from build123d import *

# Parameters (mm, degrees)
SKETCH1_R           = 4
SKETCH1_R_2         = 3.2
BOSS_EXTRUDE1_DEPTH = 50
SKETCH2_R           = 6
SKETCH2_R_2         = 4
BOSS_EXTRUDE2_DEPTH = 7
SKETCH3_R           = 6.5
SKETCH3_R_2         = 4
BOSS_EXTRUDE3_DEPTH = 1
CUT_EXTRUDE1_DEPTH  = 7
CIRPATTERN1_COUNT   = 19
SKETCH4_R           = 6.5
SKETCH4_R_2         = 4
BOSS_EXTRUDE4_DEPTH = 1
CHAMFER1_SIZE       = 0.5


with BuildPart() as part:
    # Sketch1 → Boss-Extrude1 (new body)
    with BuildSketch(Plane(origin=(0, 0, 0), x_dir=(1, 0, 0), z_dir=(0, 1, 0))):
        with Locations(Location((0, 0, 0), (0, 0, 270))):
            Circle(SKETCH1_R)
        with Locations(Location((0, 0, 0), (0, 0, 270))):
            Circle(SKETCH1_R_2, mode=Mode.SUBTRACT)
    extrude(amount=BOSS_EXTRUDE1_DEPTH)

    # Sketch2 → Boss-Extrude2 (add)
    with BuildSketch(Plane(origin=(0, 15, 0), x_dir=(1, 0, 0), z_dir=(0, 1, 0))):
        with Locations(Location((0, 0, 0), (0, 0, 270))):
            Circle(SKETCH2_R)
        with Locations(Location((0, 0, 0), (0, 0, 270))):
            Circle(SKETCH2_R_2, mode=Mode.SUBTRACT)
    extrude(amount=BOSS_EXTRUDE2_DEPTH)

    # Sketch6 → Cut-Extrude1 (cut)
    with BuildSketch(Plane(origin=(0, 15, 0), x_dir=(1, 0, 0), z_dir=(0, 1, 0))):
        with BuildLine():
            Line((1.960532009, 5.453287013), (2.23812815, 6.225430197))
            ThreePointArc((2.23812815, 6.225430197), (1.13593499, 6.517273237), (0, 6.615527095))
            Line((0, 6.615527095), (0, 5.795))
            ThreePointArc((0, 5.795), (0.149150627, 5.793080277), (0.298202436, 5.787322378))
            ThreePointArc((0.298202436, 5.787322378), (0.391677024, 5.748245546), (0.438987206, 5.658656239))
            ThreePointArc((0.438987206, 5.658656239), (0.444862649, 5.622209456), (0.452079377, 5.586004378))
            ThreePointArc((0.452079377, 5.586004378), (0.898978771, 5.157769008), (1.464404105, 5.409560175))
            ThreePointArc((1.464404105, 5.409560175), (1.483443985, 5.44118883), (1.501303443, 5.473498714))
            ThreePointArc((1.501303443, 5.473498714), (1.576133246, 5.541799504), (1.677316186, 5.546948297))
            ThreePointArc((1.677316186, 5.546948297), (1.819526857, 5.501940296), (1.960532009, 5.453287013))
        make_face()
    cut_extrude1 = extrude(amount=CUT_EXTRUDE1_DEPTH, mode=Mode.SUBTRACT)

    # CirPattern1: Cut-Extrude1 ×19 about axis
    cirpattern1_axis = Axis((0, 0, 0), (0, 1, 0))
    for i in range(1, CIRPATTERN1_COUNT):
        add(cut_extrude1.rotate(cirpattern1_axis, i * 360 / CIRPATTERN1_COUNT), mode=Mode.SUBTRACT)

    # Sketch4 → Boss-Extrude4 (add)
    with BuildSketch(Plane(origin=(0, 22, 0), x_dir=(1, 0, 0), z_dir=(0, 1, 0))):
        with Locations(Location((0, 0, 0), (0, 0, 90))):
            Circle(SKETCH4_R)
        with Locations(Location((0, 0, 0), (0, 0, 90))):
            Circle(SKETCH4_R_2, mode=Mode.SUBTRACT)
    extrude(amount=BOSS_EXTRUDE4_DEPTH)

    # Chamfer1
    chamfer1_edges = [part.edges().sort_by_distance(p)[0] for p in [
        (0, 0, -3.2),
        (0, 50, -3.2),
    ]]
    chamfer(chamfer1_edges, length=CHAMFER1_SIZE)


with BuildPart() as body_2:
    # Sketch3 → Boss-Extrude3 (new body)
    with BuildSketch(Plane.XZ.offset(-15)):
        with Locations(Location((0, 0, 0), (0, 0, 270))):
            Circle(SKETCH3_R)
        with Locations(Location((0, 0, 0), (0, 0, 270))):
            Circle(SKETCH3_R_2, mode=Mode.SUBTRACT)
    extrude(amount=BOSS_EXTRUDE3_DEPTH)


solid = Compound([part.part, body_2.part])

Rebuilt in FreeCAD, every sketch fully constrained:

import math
import FreeCAD as App
import Part
import Sketcher


def edges_at(feature, points):
    """Names of the edges that pass closest to the given points."""
    edges = feature.Shape.Edges
    near = lambda p: min(range(len(edges)), key=lambda i: edges[i].distToShape(Part.Vertex(*p))[0])
    return sorted({f"Edge{near(p) + 1}" for p in points})

doc = App.newDocument("Part")
body = doc.addObject("PartDesign::Body", "Body")

# Sketch on XZ plane
sketch1 = body.newObject("Sketcher::SketchObject", "Sketch")
sketch1.AttachmentSupport = (doc.getObject("XZ_Plane"), [""])
sketch1.MapMode = "FlatFace"
sketch1.addGeometry([
    Part.Circle(App.Vector(0, 0, 0), App.Vector(0, 0, 1), 4),
    Part.Circle(App.Vector(0, 0, 0), App.Vector(0, 0, 1), 3.2),
], False)
sketch1.addConstraint([
    Sketcher.Constraint("Coincident", 0, 3, -1, 1),
    Sketcher.Constraint("Coincident", 1, 3, -1, 1),
    Sketcher.Constraint("Diameter", 0, 8.0),
    Sketcher.Constraint("Diameter", 1, 6.4),
])
pad1 = body.newObject("PartDesign::Pad", "Pad")
pad1.Profile = sketch1
pad1.Length = 50
pad1.Reversed = True

# Sketch on XZ plane
sketch2 = body.newObject("Sketcher::SketchObject", "Sketch001")
sketch2.AttachmentSupport = (doc.getObject("XZ_Plane"), [""])
sketch2.MapMode = "FlatFace"
sketch2.AttachmentOffset = App.Placement(App.Vector(0, 0, -15), App.Rotation())
sketch2.addGeometry([
    Part.Circle(App.Vector(0, 0, 0), App.Vector(0, 0, 1), 6),
    Part.Circle(App.Vector(0, 0, 0), App.Vector(0, 0, 1), 4),
], False)
sketch2.addConstraint([
    Sketcher.Constraint("Coincident", 0, 3, -1, 1),
    Sketcher.Constraint("Coincident", 1, 3, -1, 1),
    Sketcher.Constraint("Diameter", 0, 12.0),
    Sketcher.Constraint("Diameter", 1, 8.0),
])
pad2 = body.newObject("PartDesign::Pad", "Pad001")
pad2.Profile = sketch2
pad2.Length = 7
pad2.Reversed = True

# Sketch on XZ plane
sketch3 = body.newObject("Sketcher::SketchObject", "Sketch002")
sketch3.AttachmentSupport = (doc.getObject("XZ_Plane"), [""])
sketch3.MapMode = "FlatFace"
sketch3.AttachmentOffset = App.Placement(App.Vector(0, 0, -15), App.Rotation())
sketch3.addGeometry([
    Part.LineSegment(App.Vector(1.96, -5.45, 0), App.Vector(2.24, -6.23, 0)),  # 0
    Part.ArcOfCircle(Part.Circle(App.Vector(0, 0, 0), App.Vector(0, 0, 1), 6.62), math.radians(-90), math.radians(-70.23)),  # 1
    Part.LineSegment(App.Vector(0, -6.62, 0), App.Vector(0, -5.79, 0)),  # 2
    Part.ArcOfCircle(Part.Circle(App.Vector(0, 0, 0), App.Vector(0, 0, 1), 5.79), math.radians(-90), math.radians(-87.05)),  # 3
    Part.ArcOfCircle(Part.Circle(App.Vector(0.29, -5.64, 0), App.Vector(0, 0, 1), 0.15), math.radians(-87), math.radians(-8)),  # 4
    Part.ArcOfCircle(Part.Circle(App.Vector(1.43, -5.8, 0), App.Vector(0, 0, 1), 1), math.radians(167.67), math.radians(171.9)),  # 5
    Part.ArcOfCircle(Part.Circle(App.Vector(0.99, -5.7, 0), App.Vector(0, 0, 1), 0.56), math.radians(32), math.radians(168)),  # 6
    Part.ArcOfCircle(Part.Circle(App.Vector(0.62, -5.94, 0), App.Vector(0, 0, 1), 1), math.radians(27.87), math.radians(32.1)),  # 7
    Part.ArcOfCircle(Part.Circle(App.Vector(1.63, -5.4, 0), App.Vector(0, 0, 1), 0.15), math.radians(-152), math.radians(-73)),  # 8
    Part.ArcOfCircle(Part.Circle(App.Vector(0, 0, 0), App.Vector(0, 0, 1), 5.79), math.radians(-73.18), math.radians(-70.23)),  # 9
], False)
sketch3.addConstraint([
    Sketcher.Constraint("Coincident", 0, 2, 1, 2),
    Sketcher.Constraint("Coincident", 1, 1, 2, 1),
    Sketcher.Constraint("Coincident", 2, 2, 3, 1),
    Sketcher.Constraint("Tangent", 3, 2, 4, 1),
    Sketcher.Constraint("Tangent", 4, 2, 5, 2),
    Sketcher.Constraint("Tangent", 5, 1, 6, 2),
    Sketcher.Constraint("Tangent", 6, 1, 7, 2),
    Sketcher.Constraint("Tangent", 7, 1, 8, 1),
    Sketcher.Constraint("Tangent", 8, 2, 9, 1),
    Sketcher.Constraint("Coincident", 9, 2, 0, 1),
    Sketcher.Constraint("Vertical", 2),
    Sketcher.Constraint("Coincident", 1, 3, -1, 1),
    Sketcher.Constraint("Coincident", 3, 3, -1, 1),
    Sketcher.Constraint("Coincident", 9, 3, -1, 1),
    Sketcher.Constraint("Equal", 5, 7),
    Sketcher.Constraint("Equal", 4, 8),
    Sketcher.Constraint("Equal", 3, 9),
    Sketcher.Constraint("PointOnObject", 1, 1, -2),
    Sketcher.Constraint("Radius", 5, 1.0),
    Sketcher.Constraint("Radius", 4, 0.15),
    Sketcher.Constraint("Radius", 3, 5.794999),
    Sketcher.Constraint("Radius", 6, 0.555),
    Sketcher.Constraint("Radius", 1, 6.615527),
    Sketcher.Constraint("DistanceY", 1, 1, 6, 3, 0.911001),
    Sketcher.Constraint("DistanceX", -1, 1, 8, 3, 1.6339),
    Sketcher.Constraint("DistanceY", 7, 1, -1, 1, 5.473499),
    Sketcher.Constraint("DistanceX", 7, 3, 0, 2, 1.6208),
    Sketcher.Constraint("DistanceX", -1, 1, 5, 3, 1.429011),
    Sketcher.Constraint("DistanceY", 8, 2, 9, 2, 0.093661),
])
pocket1 = body.newObject("PartDesign::Pocket", "Pocket")
pocket1.Profile = sketch3
pocket1.Length = 7
doc.recompute()

polarpattern = body.newObject("PartDesign::PolarPattern", "PolarPattern")
polarpattern.Originals = [pocket1]
polarpattern.Axis = (doc.getObject("Y_Axis"), [""])
polarpattern.Angle = 360
polarpattern.Occurrences = 19
body.Tip = polarpattern

# Sketch on XZ plane
sketch4 = body.newObject("Sketcher::SketchObject", "Sketch003")
sketch4.AttachmentSupport = (doc.getObject("XZ_Plane"), [""])
sketch4.MapMode = "FlatFace"
sketch4.AttachmentOffset = App.Placement(App.Vector(0, 0, -22), App.Rotation())
sketch4.addGeometry([
    Part.Circle(App.Vector(0, 0, 0), App.Vector(0, 0, 1), 6.5),
    Part.Circle(App.Vector(0, 0, 0), App.Vector(0, 0, 1), 4),
], False)
sketch4.addConstraint([
    Sketcher.Constraint("Coincident", 0, 3, -1, 1),
    Sketcher.Constraint("Coincident", 1, 3, -1, 1),
    Sketcher.Constraint("Diameter", 0, 13.0),
    Sketcher.Constraint("Diameter", 1, 8.0),
])
pad3 = body.newObject("PartDesign::Pad", "Pad002")
pad3.Profile = sketch4
pad3.Length = 1
pad3.Reversed = True
doc.recompute()

chamfer = body.newObject("PartDesign::Chamfer", "Chamfer")
chamfer.Base = (pad3, edges_at(pad3, [(0, 0, -3.2), (0, 50, -3.2)]))
chamfer.Size = 0.5
body2 = doc.addObject("PartDesign::Body", "Body001")

# Sketch on XZ plane
sketch5 = body2.newObject("Sketcher::SketchObject", "Sketch004")
sketch5.AttachmentSupport = (doc.getObject("XZ_Plane001"), [""])
sketch5.MapMode = "FlatFace"
sketch5.AttachmentOffset = App.Placement(App.Vector(0, 0, -15), App.Rotation())
sketch5.addGeometry([
    Part.Circle(App.Vector(0, 0, 0), App.Vector(0, 0, 1), 6.5),
    Part.Circle(App.Vector(0, 0, 0), App.Vector(0, 0, 1), 4),
], False)
sketch5.addConstraint([
    Sketcher.Constraint("Coincident", 0, 3, -1, 1),
    Sketcher.Constraint("Coincident", 1, 3, -1, 1),
    Sketcher.Constraint("Diameter", 0, 13.0),
    Sketcher.Constraint("Diameter", 1, 8.0),
])
pad4 = body2.newObject("PartDesign::Pad", "Pad003")
pad4.Profile = sketch5
pad4.Length = 1

doc.recompute()
